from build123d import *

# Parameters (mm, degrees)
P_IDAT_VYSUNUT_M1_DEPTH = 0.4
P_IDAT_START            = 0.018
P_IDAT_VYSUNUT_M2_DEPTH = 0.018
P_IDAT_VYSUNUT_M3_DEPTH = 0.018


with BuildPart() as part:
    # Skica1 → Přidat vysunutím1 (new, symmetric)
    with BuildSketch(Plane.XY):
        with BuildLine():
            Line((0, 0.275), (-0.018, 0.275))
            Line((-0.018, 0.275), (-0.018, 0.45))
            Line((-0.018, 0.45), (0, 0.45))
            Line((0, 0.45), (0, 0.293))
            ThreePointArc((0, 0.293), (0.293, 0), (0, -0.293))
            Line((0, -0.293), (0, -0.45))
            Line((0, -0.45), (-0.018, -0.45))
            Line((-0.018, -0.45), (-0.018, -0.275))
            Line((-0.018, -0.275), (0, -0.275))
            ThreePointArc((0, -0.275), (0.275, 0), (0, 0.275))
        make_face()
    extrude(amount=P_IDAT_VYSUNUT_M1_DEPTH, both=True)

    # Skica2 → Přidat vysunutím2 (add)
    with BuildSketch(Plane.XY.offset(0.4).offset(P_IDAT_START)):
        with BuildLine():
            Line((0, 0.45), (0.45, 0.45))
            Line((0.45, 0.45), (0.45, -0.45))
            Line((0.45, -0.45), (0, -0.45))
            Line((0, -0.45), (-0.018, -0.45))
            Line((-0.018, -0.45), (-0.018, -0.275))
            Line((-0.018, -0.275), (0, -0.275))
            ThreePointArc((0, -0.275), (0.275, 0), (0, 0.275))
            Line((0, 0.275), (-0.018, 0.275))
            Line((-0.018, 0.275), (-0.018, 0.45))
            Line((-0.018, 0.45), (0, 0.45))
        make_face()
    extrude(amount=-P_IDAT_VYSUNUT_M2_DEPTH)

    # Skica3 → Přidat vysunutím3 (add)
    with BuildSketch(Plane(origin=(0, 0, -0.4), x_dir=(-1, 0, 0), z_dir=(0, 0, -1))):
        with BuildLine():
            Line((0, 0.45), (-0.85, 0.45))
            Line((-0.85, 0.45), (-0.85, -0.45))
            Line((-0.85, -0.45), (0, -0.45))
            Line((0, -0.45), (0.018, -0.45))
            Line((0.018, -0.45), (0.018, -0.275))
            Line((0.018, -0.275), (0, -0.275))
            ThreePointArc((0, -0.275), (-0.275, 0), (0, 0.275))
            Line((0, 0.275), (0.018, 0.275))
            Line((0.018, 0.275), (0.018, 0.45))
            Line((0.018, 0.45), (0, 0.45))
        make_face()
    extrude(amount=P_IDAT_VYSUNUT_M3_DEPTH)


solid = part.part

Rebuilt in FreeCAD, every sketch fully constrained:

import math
import FreeCAD as App
import Part
import Sketcher
Q = App.Units.Quantity

doc = App.newDocument("Part")
params = doc.addObject("Spreadsheet::Sheet", "Params")
for row, (alias, value) in enumerate([
    ("pad1_length", "0.8 mm"),
    ("sketch2_height", "0.9 mm"),
    ("pad2_length", "0.018 mm"),
    ("sketch3_height", "0.9 mm"),
    ("pad3_length", "0.018 mm"),
], start=1):
    params.set(f"A{row}", alias)
    params.set(f"B{row}", "=" + value)
    params.setAlias(f"B{row}", alias)

body = doc.addObject("PartDesign::Body", "Body")

sketch1 = body.newObject("Sketcher::SketchObject", "Sketch")
sketch1.AttachmentSupport = (doc.getObject("XY_Plane"), [""])
sketch1.MapMode = "FlatFace"
sketch1.addGeometry([
    Part.LineSegment(App.Vector(-0.018, 0.275, 0), App.Vector(0, 0.275, 0)),
    Part.ArcOfCircle(Part.Circle(App.Vector(0, 0, 0), App.Vector(0, 0, 1), 0.275), math.radians(-90), math.radians(90)),
    Part.LineSegment(App.Vector(0, -0.275, 0), App.Vector(-0.018, -0.275, 0)),
    Part.LineSegment(App.Vector(-0.018, -0.275, 0), App.Vector(-0.018, -0.45, 0)),
    Part.LineSegment(App.Vector(-0.018, -0.45, 0), App.Vector(0, -0.45, 0)),
    Part.LineSegment(App.Vector(0, -0.45, 0), App.Vector(0, -0.293, 0)),
    Part.ArcOfCircle(Part.Circle(App.Vector(0, 0, 0), App.Vector(0, 0, 1), 0.293), math.radians(-90), math.radians(90)),
    Part.LineSegment(App.Vector(0, 0.293, 0), App.Vector(0, 0.45, 0)),
    Part.LineSegment(App.Vector(0, 0.45, 0), App.Vector(-0.018, 0.45, 0)),
    Part.LineSegment(App.Vector(-0.018, 0.45, 0), App.Vector(-0.018, 0.275, 0)),
], False)
sketch1.addConstraint([
    Sketcher.Constraint("Tangent", 0, 2, 1, 2),
    Sketcher.Constraint("Tangent", 1, 1, 2, 1),
    Sketcher.Constraint("Coincident", 2, 2, 3, 1),
    Sketcher.Constraint("Coincident", 3, 2, 4, 1),
    Sketcher.Constraint("Coincident", 4, 2, 5, 1),
    Sketcher.Constraint("Coincident", 5, 2, 6, 1),
    Sketcher.Constraint("Coincident", 6, 2, 7, 1),
    Sketcher.Constraint("Coincident", 7, 2, 8, 1),
    Sketcher.Constraint("Coincident", 8, 2, 9, 1),
    Sketcher.Constraint("Coincident", 9, 2, 0, 1),
    Sketcher.Constraint("Horizontal", 0),
    Sketcher.Constraint("Horizontal", 2),
    Sketcher.Constraint("Vertical", 3),
    Sketcher.Constraint("Horizontal", 4),
    Sketcher.Constraint("Vertical", 5),
    Sketcher.Constraint("Vertical", 7),
    Sketcher.Constraint("Horizontal", 8),
    Sketcher.Constraint("Vertical", 9),
    Sketcher.Constraint("Coincident", 1, 3, -1, 1),
    Sketcher.Constraint("Coincident", 6, 3, -1, 1),
    Sketcher.Constraint("Symmetric", 4, 2, 7, 2, -1, 1),
    Sketcher.Constraint("PointOnObject", 4, 2, -2),
    Sketcher.Constraint("Vertical", 3, 2, 8, 2),
    Sketcher.Constraint("Radius", 1, Q("0.275 mm")),
    Sketcher.Constraint("Radius", 6, Q("0.293 mm")),
    Sketcher.Constraint("DistanceX", 0, 1, 0, 2, Q("0.018 mm")),
    Sketcher.Constraint("DistanceY", 3, 2, 3, 1, Q("0.175 mm")),
])
pad1 = body.newObject("PartDesign::Pad", "Pad")
pad1.Profile = sketch1
pad1.setExpression("Length", "Params.pad1_length")
pad1.Midplane = True

sketch2 = body.newObject("Sketcher::SketchObject", "Sketch001")
sketch2.AttachmentSupport = (doc.getObject("XY_Plane"), [""])
sketch2.MapMode = "FlatFace"
sketch2.AttachmentOffset = App.Placement(App.Vector(0, 0, 0.418), App.Rotation())
sketch2.addGeometry([
    Part.LineSegment(App.Vector(0.45, -0.45, 0), App.Vector(0.45, 0.45, 0)),
    Part.LineSegment(App.Vector(0.45, 0.45, 0), App.Vector(-0.018, 0.45, 0)),
    Part.LineSegment(App.Vector(-0.018, 0.45, 0), App.Vector(-0.018, 0.275, 0)),
    Part.LineSegment(App.Vector(-0.018, 0.275, 0), App.Vector(0, 0.275, 0)),
    Part.ArcOfCircle(Part.Circle(App.Vector(0, 0, 0), App.Vector(0, 0, 1), 0.275), math.radians(-90), math.radians(90)),
    Part.LineSegment(App.Vector(0, -0.275, 0), App.Vector(-0.018, -0.275, 0)),
    Part.LineSegment(App.Vector(-0.018, -0.275, 0), App.Vector(-0.018, -0.45, 0)),
    Part.LineSegment(App.Vector(-0.018, -0.45, 0), App.Vector(0.45, -0.45, 0)),
], False)
sketch2.addConstraint([
    Sketcher.Constraint("Coincident", 0, 2, 1, 1),
    Sketcher.Constraint("Coincident", 1, 2, 2, 1),
    Sketcher.Constraint("Coincident", 2, 2, 3, 1),
    Sketcher.Constraint("Tangent", 3, 2, 4, 2),
    Sketcher.Constraint("Tangent", 4, 1, 5, 1),
    Sketcher.Constraint("Coincident", 5, 2, 6, 1),
    Sketcher.Constraint("Coincident", 6, 2, 7, 1),
    Sketcher.Constraint("Coincident", 7, 2, 0, 1),
    Sketcher.Constraint("Vertical", 0),
    Sketcher.Constraint("Horizontal", 1),
    Sketcher.Constraint("Vertical", 2),
    Sketcher.Constraint("Horizontal", 3),
    Sketcher.Constraint("Horizontal", 5),
    Sketcher.Constraint("Vertical", 6),
    Sketcher.Constraint("Horizontal", 7),
    Sketcher.Constraint("Coincident", 4, 3, -1, 1),
    Sketcher.Constraint("Symmetric", 1, 2, 6, 2, -1),
    Sketcher.Constraint("DistanceY", 0, 1, 0, 2, Q("0.9 mm")),
    Sketcher.Constraint("Radius", 4, Q("0.275 mm")),
    Sketcher.Constraint("DistanceX", 1, 2, 1, 1, Q("0.468 mm")),
    Sketcher.Constraint("DistanceX", 3, 1, 3, 2, Q("0.018 mm")),
])
sketch2.setExpression("Constraints[17]", "Params.sketch2_height")
pad2 = body.newObject("PartDesign::Pad", "Pad001")
pad2.Profile = sketch2
pad2.setExpression("Length", "Params.pad2_length")
pad2.Reversed = True

sketch3 = body.newObject("Sketcher::SketchObject", "Sketch002")
sketch3.AttachmentSupport = (doc.getObject("XY_Plane"), [""])
sketch3.MapMode = "FlatFace"
sketch3.AttachmentOffset = App.Placement(App.Vector(0, 0, -0.4), App.Rotation())
sketch3.addGeometry([
    Part.LineSegment(App.Vector(0.85, 0.45, 0), App.Vector(0.85, -0.45, 0)),
    Part.LineSegment(App.Vector(0.85, -0.45, 0), App.Vector(-0.018, -0.45, 0)),
    Part.LineSegment(App.Vector(-0.018, -0.45, 0), App.Vector(-0.018, -0.275, 0)),
    Part.LineSegment(App.Vector(-0.018, -0.275, 0), App.Vector(0, -0.275, 0)),
    Part.ArcOfCircle(Part.Circle(App.Vector(0, 0, 0), App.Vector(0, 0, 1), 0.275), math.radians(-90), math.radians(90)),
    Part.LineSegment(App.Vector(0, 0.275, 0), App.Vector(-0.018, 0.275, 0)),
    Part.LineSegment(App.Vector(-0.018, 0.275, 0), App.Vector(-0.018, 0.45, 0)),
    Part.LineSegment(App.Vector(-0.018, 0.45, 0), App.Vector(0.85, 0.45, 0)),
], False)
sketch3.addConstraint([
    Sketcher.Constraint("Coincident", 0, 2, 1, 1),
    Sketcher.Constraint("Coincident", 1, 2, 2, 1),
    Sketcher.Constraint("Coincident", 2, 2, 3, 1),
    Sketcher.Constraint("Tangent", 3, 2, 4, 1),
    Sketcher.Constraint("Tangent", 4, 2, 5, 1),
    Sketcher.Constraint("Coincident", 5, 2, 6, 1),
    Sketcher.Constraint("Coincident", 6, 2, 7, 1),
    Sketcher.Constraint("Coincident", 7, 2, 0, 1),
    Sketcher.Constraint("Vertical", 0),
    Sketcher.Constraint("Horizontal", 1),
    Sketcher.Constraint("Vertical", 2),
    Sketcher.Constraint("Horizontal", 3),
    Sketcher.Constraint("Horizontal", 5),
    Sketcher.Constraint("Vertical", 6),
    Sketcher.Constraint("Horizontal", 7),
    Sketcher.Constraint("Coincident", 4, 3, -1, 1),
    Sketcher.Constraint("Symmetric", 1, 2, 6, 2, -1),
    Sketcher.Constraint("DistanceY", 0, 2, 0, 1, Q("0.9 mm")),
    Sketcher.Constraint("Radius", 4, Q("0.275 mm")),
    Sketcher.Constraint("DistanceX", 1, 2, 1, 1, Q("0.868 mm")),
    Sketcher.Constraint("DistanceX", 3, 1, 3, 2, Q("0.018 mm")),
])
sketch3.setExpression("Constraints[17]", "Params.sketch3_height")
pad3 = body.newObject("PartDesign::Pad", "Pad002")
pad3.Profile = sketch3
pad3.setExpression("Length", "Params.pad3_length")
pad3.Reversed = True

doc.recompute()
